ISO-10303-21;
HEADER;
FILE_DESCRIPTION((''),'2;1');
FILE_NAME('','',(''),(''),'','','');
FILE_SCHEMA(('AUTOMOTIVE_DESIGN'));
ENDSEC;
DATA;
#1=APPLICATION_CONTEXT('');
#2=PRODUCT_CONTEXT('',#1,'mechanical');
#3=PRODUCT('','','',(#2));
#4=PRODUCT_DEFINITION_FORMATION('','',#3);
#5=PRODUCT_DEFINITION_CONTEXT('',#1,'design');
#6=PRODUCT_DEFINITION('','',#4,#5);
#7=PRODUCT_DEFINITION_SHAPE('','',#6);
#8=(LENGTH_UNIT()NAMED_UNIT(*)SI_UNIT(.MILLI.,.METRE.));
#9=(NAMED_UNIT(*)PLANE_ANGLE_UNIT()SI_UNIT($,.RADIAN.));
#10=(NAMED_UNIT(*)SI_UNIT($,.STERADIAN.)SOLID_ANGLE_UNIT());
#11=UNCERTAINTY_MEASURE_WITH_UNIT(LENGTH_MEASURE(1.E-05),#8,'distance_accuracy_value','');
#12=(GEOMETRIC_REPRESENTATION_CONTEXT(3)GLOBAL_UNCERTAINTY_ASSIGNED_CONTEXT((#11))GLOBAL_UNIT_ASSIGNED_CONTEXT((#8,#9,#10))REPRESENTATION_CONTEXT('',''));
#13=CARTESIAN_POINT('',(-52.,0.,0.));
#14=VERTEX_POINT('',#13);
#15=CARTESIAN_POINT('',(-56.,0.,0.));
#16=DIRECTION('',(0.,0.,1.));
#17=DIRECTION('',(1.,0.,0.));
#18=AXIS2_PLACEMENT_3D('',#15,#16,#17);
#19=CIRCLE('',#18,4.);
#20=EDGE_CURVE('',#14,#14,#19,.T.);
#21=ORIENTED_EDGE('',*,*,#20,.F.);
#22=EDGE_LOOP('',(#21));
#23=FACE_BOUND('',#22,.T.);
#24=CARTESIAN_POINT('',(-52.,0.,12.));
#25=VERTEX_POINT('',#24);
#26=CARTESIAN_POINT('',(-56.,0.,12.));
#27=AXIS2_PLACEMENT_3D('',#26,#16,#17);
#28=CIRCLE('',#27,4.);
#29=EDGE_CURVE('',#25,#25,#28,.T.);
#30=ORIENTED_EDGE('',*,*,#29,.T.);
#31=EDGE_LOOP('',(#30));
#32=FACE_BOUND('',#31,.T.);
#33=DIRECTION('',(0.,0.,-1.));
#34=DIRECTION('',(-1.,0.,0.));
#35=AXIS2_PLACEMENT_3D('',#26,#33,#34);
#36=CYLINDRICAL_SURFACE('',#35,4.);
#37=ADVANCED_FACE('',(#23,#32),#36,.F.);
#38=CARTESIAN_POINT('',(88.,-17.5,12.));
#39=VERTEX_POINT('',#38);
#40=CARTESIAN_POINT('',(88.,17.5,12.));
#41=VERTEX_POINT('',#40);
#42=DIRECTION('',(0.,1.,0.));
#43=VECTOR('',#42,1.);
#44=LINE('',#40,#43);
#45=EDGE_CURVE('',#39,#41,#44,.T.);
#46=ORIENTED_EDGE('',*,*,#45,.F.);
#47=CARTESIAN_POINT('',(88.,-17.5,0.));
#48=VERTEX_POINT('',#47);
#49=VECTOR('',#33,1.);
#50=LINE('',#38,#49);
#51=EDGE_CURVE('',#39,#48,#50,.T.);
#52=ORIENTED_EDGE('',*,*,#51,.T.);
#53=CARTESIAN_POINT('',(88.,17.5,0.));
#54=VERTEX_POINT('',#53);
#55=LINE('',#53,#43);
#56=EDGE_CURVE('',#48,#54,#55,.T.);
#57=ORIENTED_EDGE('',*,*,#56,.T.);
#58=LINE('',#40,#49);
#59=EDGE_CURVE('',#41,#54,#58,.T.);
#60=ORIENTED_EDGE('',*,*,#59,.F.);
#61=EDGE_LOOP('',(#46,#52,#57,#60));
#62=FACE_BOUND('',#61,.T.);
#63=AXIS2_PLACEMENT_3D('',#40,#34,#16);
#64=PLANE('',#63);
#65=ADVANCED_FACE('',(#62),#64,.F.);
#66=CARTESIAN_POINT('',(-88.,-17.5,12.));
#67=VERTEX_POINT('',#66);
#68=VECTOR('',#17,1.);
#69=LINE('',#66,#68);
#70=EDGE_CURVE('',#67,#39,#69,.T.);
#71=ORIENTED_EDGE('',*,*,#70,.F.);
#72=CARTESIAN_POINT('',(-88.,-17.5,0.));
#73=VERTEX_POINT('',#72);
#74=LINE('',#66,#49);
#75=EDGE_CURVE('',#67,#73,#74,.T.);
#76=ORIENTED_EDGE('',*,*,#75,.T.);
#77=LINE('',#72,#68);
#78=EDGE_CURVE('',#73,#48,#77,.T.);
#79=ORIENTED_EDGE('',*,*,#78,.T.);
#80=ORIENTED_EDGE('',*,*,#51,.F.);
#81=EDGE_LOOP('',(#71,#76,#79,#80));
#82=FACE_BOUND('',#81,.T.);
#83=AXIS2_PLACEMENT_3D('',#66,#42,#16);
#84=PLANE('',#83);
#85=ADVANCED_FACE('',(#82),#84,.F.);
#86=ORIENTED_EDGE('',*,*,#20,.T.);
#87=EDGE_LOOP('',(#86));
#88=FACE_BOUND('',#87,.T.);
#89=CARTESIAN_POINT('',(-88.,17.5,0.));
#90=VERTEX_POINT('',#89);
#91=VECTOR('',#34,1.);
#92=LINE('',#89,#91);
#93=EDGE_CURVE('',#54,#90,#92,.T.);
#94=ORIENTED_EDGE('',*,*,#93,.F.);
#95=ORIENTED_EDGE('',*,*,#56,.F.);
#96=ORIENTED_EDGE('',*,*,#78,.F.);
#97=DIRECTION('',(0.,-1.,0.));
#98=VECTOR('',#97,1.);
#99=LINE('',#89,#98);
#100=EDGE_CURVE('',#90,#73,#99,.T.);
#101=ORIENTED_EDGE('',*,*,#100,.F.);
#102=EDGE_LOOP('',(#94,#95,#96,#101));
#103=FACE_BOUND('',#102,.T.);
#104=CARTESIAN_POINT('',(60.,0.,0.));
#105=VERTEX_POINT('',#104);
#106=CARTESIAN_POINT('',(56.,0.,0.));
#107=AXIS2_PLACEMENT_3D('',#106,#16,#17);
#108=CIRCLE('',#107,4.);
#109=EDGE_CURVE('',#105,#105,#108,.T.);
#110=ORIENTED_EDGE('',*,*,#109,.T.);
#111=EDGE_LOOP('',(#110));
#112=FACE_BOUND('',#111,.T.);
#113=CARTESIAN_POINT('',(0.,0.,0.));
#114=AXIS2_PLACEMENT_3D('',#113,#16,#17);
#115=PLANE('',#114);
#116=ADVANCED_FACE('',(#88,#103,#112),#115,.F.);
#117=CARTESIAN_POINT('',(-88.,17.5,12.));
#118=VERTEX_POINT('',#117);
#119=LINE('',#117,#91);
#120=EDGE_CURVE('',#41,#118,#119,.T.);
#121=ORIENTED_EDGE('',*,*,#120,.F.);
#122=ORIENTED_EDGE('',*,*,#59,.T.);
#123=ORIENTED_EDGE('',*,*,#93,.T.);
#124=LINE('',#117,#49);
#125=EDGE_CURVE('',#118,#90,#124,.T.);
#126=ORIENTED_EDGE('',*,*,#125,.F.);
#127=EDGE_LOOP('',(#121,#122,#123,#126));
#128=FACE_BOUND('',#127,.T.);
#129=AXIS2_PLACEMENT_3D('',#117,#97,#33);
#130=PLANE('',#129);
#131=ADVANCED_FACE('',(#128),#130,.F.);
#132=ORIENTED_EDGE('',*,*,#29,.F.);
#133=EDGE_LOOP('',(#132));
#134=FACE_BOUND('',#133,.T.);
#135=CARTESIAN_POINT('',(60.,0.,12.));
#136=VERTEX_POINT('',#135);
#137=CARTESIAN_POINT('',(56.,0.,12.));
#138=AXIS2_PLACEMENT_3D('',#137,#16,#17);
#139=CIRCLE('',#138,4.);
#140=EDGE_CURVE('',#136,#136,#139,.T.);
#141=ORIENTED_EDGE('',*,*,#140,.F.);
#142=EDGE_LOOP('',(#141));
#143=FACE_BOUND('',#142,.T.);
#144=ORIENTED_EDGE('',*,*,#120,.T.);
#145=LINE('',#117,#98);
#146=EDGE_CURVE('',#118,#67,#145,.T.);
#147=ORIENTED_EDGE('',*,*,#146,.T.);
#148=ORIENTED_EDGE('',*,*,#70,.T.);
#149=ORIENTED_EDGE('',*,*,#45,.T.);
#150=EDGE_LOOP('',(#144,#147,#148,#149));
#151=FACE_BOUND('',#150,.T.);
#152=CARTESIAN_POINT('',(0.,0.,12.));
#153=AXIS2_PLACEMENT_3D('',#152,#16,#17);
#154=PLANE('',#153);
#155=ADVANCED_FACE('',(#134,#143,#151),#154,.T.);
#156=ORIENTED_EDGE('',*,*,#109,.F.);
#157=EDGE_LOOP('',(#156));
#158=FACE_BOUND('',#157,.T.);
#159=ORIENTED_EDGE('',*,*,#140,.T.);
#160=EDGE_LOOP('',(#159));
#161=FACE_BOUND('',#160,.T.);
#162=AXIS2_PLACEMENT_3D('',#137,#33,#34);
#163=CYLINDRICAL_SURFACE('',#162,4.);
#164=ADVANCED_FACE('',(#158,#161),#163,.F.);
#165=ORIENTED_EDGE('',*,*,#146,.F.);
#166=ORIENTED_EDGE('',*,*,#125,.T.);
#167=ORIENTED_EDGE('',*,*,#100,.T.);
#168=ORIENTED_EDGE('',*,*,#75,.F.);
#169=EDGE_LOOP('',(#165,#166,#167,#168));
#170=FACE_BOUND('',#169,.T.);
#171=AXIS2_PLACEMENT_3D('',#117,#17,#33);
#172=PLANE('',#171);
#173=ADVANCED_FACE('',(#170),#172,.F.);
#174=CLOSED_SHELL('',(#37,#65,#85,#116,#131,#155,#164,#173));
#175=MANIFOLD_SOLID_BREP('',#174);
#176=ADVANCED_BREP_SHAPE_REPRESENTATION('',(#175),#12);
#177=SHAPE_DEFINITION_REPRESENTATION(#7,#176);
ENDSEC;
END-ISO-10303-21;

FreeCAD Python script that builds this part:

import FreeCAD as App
import Part
import Sketcher
from FreeCAD import Vector
Q = App.Units.Quantity

doc = App.newDocument("Part")
params = doc.addObject("Spreadsheet::Sheet", "Params")
for row, (alias, value) in enumerate([
    ("sketch1_diameter", "8 mm"),
    ("sketch1_width", "176 mm"),
    ("sketch1_height", "35 mm"),
    ("pad1_length", "12 mm"),
], start=1):
    params.set(f"A{row}", alias)
    params.set(f"B{row}", "=" + value)
    params.setAlias(f"B{row}", alias)

body = doc.addObject("PartDesign::Body", "Body")

# Sketch on XY plane
sketch1 = doc.addObject("Sketcher::SketchObject", "Sketch")
body.addObject(sketch1)
sketch1.AttachmentSupport = (doc.XY_Plane, [""])
sketch1.MapMode = "FlatFace"
sketch1.addGeometry([
    Part.LineSegment(Vector(-88, 17.5, 0), Vector(-88, -17.5, 0)),  # 0
    Part.LineSegment(Vector(-88, -17.5, 0), Vector(88, -17.5, 0)),  # 1
    Part.LineSegment(Vector(88, -17.5, 0), Vector(88, 17.5, 0)),  # 2
    Part.LineSegment(Vector(88, 17.5, 0), Vector(-88, 17.5, 0)),  # 3
    Part.Circle(Vector(-56, 0, 0), Vector(0, 0, 1), 4),  # 4
    Part.Circle(Vector(56, 0, 0), Vector(0, 0, 1), 4),  # 5
], False)
sketch1.addConstraint([
    Sketcher.Constraint("Coincident", 0, 2, 1, 1),
    Sketcher.Constraint("Coincident", 1, 2, 2, 1),
    Sketcher.Constraint("Coincident", 2, 2, 3, 1),
    Sketcher.Constraint("Coincident", 3, 2, 0, 1),
    Sketcher.Constraint("Vertical", 0),
    Sketcher.Constraint("Horizontal", 1),
    Sketcher.Constraint("Vertical", 2),
    Sketcher.Constraint("Horizontal", 3),
    Sketcher.Constraint("Equal", 4, 5),
    Sketcher.Constraint("Symmetric", 4, 3, 5, 3, -1, 1),
    Sketcher.Constraint("Symmetric", 0, 2, 2, 2, -1, 1),
    Sketcher.Constraint("PointOnObject", 4, 3, -1),
    Sketcher.Constraint("Diameter", 4, Q("8 mm")),
    Sketcher.Constraint("DistanceX", 1, 1, 1, 2, Q("176 mm")),
    Sketcher.Constraint("DistanceY", 0, 2, 0, 1, Q("35 mm")),
    Sketcher.Constraint("DistanceX", 4, 3, -1, 1, Q("56 mm")),
])
sketch1.setExpression("Constraints[12]", "Params.sketch1_diameter")
sketch1.setExpression("Constraints[13]", "Params.sketch1_width")
sketch1.setExpression("Constraints[14]", "Params.sketch1_height")
pad1 = doc.addObject("PartDesign::Pad", "Pad")
body.addObject(pad1)
pad1.Profile = sketch1
pad1.setExpression("Length", "Params.pad1_length")

doc.recompute()
